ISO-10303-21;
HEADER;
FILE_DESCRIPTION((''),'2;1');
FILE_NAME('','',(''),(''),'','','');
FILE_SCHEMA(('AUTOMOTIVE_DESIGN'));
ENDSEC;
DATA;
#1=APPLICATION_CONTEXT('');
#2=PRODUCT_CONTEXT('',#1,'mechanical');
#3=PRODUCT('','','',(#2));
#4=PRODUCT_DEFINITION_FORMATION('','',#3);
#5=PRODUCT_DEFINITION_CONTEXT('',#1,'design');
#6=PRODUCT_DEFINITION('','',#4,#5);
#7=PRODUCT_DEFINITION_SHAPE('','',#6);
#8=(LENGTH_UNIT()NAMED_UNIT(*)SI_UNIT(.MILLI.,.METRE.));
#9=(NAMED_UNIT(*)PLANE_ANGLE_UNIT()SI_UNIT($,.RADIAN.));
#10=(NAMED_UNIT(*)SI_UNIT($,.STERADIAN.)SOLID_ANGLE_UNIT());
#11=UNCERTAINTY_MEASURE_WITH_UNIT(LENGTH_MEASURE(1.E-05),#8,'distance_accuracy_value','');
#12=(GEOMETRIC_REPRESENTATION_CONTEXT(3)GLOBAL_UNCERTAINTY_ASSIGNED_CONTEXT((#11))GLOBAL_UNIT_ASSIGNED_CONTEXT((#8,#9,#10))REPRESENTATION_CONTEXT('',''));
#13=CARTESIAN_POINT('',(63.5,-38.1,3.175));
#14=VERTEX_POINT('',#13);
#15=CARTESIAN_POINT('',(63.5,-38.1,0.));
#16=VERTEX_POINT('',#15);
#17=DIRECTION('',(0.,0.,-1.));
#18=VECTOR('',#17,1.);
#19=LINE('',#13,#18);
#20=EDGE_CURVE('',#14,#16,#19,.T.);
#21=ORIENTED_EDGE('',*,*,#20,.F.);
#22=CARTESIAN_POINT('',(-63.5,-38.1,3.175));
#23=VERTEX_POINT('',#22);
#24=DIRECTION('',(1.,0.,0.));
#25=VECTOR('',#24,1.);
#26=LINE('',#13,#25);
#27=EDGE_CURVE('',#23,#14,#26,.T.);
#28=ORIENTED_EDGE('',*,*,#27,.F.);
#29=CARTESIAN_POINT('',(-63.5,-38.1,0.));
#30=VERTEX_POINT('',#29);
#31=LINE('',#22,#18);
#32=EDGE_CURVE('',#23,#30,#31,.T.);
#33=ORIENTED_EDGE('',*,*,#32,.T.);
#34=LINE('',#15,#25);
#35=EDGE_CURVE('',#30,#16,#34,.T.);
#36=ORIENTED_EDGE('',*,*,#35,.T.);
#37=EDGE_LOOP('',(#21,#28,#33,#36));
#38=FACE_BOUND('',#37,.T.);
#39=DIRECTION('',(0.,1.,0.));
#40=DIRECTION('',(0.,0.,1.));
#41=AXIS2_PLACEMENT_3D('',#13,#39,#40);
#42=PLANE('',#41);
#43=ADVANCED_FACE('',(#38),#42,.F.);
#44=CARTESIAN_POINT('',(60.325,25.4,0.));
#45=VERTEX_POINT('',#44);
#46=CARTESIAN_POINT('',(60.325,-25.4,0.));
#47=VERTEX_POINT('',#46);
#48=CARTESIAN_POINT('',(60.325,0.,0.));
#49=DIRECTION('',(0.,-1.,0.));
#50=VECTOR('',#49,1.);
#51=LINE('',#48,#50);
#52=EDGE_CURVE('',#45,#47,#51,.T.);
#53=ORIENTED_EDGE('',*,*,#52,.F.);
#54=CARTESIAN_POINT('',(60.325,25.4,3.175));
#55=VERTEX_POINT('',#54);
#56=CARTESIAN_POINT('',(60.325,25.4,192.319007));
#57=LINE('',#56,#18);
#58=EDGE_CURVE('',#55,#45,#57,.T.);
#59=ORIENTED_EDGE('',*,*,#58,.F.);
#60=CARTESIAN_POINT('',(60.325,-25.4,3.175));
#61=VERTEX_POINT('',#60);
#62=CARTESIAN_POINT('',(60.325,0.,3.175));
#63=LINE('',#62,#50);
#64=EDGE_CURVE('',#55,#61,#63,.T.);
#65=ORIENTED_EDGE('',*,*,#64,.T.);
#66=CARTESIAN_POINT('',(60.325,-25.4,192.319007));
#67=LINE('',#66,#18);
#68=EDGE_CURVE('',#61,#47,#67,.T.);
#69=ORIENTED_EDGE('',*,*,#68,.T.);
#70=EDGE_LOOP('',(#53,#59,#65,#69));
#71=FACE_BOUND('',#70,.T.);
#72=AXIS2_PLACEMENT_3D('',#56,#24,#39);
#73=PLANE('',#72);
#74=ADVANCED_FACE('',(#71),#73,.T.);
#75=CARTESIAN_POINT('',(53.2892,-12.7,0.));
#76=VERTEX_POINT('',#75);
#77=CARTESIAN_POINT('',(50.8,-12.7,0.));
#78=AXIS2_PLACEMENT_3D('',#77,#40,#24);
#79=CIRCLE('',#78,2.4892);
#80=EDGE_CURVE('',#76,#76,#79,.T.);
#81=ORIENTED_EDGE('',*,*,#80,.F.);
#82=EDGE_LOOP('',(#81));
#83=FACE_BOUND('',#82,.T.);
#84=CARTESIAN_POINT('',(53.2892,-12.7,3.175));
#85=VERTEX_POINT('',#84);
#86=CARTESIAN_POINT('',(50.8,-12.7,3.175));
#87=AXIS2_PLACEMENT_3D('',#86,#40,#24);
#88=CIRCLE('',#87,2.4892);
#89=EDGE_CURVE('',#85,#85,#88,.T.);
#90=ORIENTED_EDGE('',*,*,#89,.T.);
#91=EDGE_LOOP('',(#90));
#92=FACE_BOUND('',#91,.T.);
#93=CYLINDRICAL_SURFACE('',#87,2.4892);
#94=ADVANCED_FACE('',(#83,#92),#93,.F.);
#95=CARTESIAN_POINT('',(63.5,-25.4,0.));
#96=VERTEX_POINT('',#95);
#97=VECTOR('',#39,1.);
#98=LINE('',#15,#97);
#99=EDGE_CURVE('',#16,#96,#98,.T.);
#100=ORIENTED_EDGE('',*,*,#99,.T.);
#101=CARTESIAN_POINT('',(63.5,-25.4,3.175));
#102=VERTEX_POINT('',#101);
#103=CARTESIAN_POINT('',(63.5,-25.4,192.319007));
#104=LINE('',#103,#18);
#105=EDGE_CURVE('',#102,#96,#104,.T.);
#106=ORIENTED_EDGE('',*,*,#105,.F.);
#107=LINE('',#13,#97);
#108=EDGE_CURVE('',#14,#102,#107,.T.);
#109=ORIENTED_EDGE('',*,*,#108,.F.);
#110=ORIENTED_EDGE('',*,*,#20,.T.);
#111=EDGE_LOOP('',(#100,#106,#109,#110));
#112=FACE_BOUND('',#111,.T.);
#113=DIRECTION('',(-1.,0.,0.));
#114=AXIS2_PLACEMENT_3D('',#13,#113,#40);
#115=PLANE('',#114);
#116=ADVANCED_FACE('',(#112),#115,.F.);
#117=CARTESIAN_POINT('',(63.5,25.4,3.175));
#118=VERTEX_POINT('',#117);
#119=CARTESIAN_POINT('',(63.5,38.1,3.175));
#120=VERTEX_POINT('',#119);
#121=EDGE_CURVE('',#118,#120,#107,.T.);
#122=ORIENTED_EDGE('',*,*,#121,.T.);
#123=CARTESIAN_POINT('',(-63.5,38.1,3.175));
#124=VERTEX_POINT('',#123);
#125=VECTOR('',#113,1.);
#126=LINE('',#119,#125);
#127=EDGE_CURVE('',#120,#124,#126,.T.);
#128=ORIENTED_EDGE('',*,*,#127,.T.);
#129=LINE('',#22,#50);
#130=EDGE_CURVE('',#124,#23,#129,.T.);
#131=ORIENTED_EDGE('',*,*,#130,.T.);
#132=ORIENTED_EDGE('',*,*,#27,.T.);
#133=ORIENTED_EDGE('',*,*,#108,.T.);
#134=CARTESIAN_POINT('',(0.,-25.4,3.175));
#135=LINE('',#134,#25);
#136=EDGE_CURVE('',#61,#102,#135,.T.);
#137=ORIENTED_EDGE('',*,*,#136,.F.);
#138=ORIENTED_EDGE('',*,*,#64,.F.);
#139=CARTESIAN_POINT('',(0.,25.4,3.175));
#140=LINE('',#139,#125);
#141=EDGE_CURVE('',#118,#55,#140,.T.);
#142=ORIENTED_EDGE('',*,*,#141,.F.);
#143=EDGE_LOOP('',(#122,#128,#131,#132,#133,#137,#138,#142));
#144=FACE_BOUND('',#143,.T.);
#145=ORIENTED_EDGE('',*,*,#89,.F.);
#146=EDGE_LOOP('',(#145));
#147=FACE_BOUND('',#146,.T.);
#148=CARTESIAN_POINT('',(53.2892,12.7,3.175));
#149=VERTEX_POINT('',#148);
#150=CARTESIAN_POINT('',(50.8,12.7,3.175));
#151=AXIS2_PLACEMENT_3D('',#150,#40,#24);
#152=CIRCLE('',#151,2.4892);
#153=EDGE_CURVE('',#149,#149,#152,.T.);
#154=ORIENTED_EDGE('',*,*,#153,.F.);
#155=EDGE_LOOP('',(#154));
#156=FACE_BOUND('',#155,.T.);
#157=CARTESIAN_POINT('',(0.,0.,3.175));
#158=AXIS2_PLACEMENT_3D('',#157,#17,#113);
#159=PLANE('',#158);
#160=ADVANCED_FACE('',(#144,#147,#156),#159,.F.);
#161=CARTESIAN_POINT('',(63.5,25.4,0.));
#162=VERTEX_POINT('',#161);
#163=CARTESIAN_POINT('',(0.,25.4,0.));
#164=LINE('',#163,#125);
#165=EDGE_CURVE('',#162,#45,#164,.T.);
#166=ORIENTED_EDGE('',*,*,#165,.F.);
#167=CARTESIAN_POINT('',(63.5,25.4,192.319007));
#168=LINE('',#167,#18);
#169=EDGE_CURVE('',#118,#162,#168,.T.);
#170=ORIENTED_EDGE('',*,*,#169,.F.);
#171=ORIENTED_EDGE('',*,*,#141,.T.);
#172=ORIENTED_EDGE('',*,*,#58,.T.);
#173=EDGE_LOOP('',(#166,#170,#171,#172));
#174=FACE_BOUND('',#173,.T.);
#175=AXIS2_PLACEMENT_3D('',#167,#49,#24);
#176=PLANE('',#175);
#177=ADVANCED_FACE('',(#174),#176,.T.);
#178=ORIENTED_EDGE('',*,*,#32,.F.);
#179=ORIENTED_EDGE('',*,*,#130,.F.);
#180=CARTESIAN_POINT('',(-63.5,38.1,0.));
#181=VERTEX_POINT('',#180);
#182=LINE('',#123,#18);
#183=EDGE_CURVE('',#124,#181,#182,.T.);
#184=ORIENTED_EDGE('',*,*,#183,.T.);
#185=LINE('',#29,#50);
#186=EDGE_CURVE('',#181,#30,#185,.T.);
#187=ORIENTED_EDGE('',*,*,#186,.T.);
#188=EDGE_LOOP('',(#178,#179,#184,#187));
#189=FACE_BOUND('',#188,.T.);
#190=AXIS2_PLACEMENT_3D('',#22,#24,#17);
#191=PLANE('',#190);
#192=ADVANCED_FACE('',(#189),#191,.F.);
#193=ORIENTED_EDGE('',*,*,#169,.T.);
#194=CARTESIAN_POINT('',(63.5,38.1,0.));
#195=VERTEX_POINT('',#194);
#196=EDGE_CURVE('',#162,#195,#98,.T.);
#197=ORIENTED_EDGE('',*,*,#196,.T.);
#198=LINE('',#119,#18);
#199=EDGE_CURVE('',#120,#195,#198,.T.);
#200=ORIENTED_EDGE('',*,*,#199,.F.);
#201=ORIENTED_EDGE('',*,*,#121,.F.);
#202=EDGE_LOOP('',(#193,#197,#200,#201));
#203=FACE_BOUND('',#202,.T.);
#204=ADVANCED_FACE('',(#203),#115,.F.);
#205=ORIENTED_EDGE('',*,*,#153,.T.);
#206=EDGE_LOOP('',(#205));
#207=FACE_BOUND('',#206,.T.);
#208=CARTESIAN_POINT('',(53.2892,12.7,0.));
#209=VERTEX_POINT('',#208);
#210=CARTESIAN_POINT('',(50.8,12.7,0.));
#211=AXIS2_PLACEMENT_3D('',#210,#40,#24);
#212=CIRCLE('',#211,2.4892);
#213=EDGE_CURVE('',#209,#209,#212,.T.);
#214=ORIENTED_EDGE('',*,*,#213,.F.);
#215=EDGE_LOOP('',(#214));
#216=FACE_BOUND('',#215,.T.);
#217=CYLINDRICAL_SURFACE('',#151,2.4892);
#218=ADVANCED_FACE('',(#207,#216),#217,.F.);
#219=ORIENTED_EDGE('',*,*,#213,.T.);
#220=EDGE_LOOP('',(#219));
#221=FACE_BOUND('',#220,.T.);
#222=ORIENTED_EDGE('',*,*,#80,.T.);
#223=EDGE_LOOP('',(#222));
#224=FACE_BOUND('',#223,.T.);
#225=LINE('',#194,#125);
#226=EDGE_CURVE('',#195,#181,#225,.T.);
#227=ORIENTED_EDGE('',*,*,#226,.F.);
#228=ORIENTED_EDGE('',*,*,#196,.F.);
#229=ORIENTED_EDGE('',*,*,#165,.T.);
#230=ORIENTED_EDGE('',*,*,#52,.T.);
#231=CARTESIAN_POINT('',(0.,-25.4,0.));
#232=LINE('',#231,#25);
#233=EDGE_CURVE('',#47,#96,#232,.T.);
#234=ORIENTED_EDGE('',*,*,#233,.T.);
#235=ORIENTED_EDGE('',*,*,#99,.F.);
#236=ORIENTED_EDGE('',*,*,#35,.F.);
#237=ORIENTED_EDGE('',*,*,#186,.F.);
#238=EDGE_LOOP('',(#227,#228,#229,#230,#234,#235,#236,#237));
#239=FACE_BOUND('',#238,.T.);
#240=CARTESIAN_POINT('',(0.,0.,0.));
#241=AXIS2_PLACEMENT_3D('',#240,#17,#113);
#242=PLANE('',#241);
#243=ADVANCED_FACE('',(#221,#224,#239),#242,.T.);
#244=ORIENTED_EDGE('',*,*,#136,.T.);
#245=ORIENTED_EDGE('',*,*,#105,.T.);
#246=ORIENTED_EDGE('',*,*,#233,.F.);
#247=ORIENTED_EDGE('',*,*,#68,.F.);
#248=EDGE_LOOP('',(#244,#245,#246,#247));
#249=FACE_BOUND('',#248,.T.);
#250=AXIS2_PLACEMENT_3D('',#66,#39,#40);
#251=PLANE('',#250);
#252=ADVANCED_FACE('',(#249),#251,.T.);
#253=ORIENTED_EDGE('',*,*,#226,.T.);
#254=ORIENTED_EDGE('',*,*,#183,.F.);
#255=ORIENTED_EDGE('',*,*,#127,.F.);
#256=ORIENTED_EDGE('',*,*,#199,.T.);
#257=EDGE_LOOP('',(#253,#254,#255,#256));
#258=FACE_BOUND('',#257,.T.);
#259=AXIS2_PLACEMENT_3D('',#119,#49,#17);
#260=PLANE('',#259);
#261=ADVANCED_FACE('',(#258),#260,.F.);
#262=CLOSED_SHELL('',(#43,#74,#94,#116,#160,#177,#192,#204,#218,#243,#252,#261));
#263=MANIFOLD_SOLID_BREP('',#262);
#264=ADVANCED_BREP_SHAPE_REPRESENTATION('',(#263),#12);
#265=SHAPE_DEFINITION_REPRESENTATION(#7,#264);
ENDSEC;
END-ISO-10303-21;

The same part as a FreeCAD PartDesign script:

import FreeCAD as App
import Part
import Sketcher

V = App.Vector
Q = App.Units.Quantity


def add_polygon(sketch, points):
    """Adds a closed chain of lines whose ends are joined by coincident constraints."""
    first, n = sketch.GeometryCount, len(points)
    for a, b in zip(points, points[1:] + points[:1]):
        sketch.addGeometry(Part.LineSegment(App.Vector(*a, 0), App.Vector(*b, 0)), False)
    for i in range(n):
        sketch.addConstraint(Sketcher.Constraint("Coincident", first + i, 2, first + (i + 1) % n, 1))

doc = App.newDocument("Part")
body = doc.addObject("PartDesign::Body", "Body")

sketch1 = doc.addObject("Sketcher::SketchObject", "Sketch")
body.addObject(sketch1)
sketch1.AttachmentSupport = (doc.XY_Plane, [""])
sketch1.MapMode = "FlatFace"
add_polygon(sketch1, [(-63.5, -38.1), (63.5, -38.1), (63.5, 38.1), (-63.5, 38.1)])
sketch1.addConstraint([
    Sketcher.Constraint("Horizontal", 0),
    Sketcher.Constraint("Vertical", 1),
    Sketcher.Constraint("Horizontal", 2),
    Sketcher.Constraint("Vertical", 3),
    Sketcher.Constraint("Symmetric", 0, 2, 2, 2, -1, 1),
    Sketcher.Constraint("DistanceX", 0, 1, 0, 2, Q("5 in")),
    Sketcher.Constraint("DistanceY", 1, 1, 1, 2, Q("3 in")),
])
pad1 = doc.addObject("PartDesign::Pad", "Pad")
body.addObject(pad1)
pad1.Profile = sketch1
pad1.Length = Q("0.125 in")

sketch2 = doc.addObject("Sketcher::SketchObject", "Sketch001")
body.addObject(sketch2)
sketch2.AttachmentSupport = (doc.XY_Plane, [""])
sketch2.MapMode = "FlatFace"
sketch2.AttachmentOffset = App.Placement(V(0, 0, 0.125 * 25.4), App.Rotation())
sketch2.addGeometry([
    Part.Circle(V(50.8, -12.7, 0), V(0, 0, 1), 2.4892),
    Part.Circle(V(50.8, 12.7, 0), V(0, 0, 1), 2.4892),
], False)
sketch2.addConstraint([
    Sketcher.Constraint("Equal", 0, 1),
    Sketcher.Constraint("Symmetric", 0, 3, 1, 3, -1),
    Sketcher.Constraint("Diameter", 0, Q("0.196 in")),
    Sketcher.Constraint("DistanceX", -1, 1, 0, 3, Q("2 in")),
    Sketcher.Constraint("DistanceY", 0, 3, 1, 3, Q("1 in")),
])
doc.recompute()
hole = doc.addObject("PartDesign::Hole", "Hole")
body.addObject(hole)
hole.Profile = sketch2
hole.ThreadType = "None"
hole.Diameter = Q("0.196 in")
hole.DepthType = "ThroughAll"

sketch3 = doc.addObject("Sketcher::SketchObject", "Sketch002")
body.addObject(sketch3)
sketch3.AttachmentSupport = (doc.XY_Plane, [""])
sketch3.MapMode = "FlatFace"
sketch3.AttachmentOffset = App.Placement(V(0, 0, 0.125 * 25.4), App.Rotation())
add_polygon(sketch3, [(60.325, 25.4), (60.325, -25.4), (945.441899, -25.4), (945.441899, 25.4)])
sketch3.addConstraint([
    Sketcher.Constraint("Vertical", 0),
    Sketcher.Constraint("Horizontal", 1),
    Sketcher.Constraint("Vertical", 2),
    Sketcher.Constraint("Horizontal", 3),
    Sketcher.Constraint("DistanceY", 0, 2, 0, 1, Q("2 in")),
    Sketcher.Constraint("DistanceY", 0, 2, -1, 1, Q("1 in")),
    Sketcher.Constraint("DistanceX", -1, 1, 0, 2, Q("2.375 in")),
    Sketcher.Constraint("DistanceX", 1, 1, 1, 2, 885.116899),
])
pocket1 = doc.addObject("PartDesign::Pocket", "Pocket")
body.addObject(pocket1)
pocket1.Profile = sketch3
pocket1.Type = "ThroughAll"
pocket1.Midplane = True

doc.recompute()
